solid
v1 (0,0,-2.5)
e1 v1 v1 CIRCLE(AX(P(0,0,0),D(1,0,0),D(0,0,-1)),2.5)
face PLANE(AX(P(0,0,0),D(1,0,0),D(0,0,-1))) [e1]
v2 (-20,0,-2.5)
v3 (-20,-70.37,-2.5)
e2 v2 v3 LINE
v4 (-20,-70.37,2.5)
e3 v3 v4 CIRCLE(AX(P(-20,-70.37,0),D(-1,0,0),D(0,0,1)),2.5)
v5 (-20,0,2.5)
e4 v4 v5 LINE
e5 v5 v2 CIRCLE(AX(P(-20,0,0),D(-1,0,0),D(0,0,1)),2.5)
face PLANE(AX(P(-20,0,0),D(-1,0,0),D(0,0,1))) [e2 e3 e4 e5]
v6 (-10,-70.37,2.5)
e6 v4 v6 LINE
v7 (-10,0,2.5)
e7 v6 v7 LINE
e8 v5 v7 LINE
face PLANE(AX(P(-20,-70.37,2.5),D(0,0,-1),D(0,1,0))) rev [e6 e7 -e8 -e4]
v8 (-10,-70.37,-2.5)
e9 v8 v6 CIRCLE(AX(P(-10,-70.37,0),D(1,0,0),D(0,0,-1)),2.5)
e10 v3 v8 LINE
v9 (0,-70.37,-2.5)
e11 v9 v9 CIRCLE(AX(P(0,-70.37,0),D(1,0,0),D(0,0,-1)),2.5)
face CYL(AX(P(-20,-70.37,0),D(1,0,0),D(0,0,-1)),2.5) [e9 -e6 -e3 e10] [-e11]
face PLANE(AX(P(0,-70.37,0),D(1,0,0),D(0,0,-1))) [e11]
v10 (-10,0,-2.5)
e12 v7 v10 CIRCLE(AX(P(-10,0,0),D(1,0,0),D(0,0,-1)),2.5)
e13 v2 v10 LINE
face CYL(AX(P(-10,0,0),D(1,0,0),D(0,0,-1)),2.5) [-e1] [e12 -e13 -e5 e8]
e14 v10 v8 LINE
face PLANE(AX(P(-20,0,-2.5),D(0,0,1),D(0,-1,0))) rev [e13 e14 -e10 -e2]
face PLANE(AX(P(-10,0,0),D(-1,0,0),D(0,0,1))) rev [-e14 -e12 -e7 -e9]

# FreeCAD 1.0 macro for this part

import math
import FreeCAD as App
import Part
import Sketcher

V = App.Vector
Q = App.Units.Quantity

doc = App.newDocument("Part")
body = doc.addObject("PartDesign::Body", "Body")

# Sketch on YZ plane
sketch1 = body.newObject("Sketcher::SketchObject", "Sketch")
sketch1.AttachmentSupport = (doc.getObject("YZ_Plane"), [""])
sketch1.MapMode = "FlatFace"
sketch1.addGeometry(Part.Circle(V(0, 0, 0), V(0, 0, 1), 2.5), False)
sketch1.addConstraint([
    Sketcher.Constraint("Coincident", 0, 3, -1, 1),
    Sketcher.Constraint("Diameter", 0, Q("5 mm")),
])
pad1 = body.newObject("PartDesign::Pad", "Pad")
pad1.Profile = sketch1
pad1.Length = 10
pad1.Reversed = True

# Sketch on YZ plane
sketch2 = body.newObject("Sketcher::SketchObject", "Sketch001")
sketch2.AttachmentSupport = (doc.getObject("YZ_Plane"), [""])
sketch2.MapMode = "FlatFace"
sketch2.AttachmentOffset = App.Placement(V(0, 0, -10), App.Rotation())
sketch2.addGeometry([
    Part.LineSegment(V(0, -2.5, 0), V(-70.37, -2.5, 0)),
    Part.ArcOfCircle(Part.Circle(V(-70.37, 0, 0), V(0, 0, 1), 2.5), math.radians(90), math.radians(270)),
    Part.LineSegment(V(-70.37, 2.5, 0), V(0, 2.5, 0)),
    Part.ArcOfCircle(Part.Circle(V(0, 0, 0), V(0, 0, 1), 2.5), math.radians(-90), math.radians(90)),
], False)
sketch2.addConstraint([
    Sketcher.Constraint("Tangent", 0, 2, 1, 2),
    Sketcher.Constraint("Tangent", 1, 1, 2, 1),
    Sketcher.Constraint("Tangent", 2, 2, 3, 2),
    Sketcher.Constraint("Tangent", 3, 1, 0, 1),
    Sketcher.Constraint("Horizontal", 0),
    Sketcher.Constraint("Horizontal", 2),
    Sketcher.Constraint("Coincident", 3, 3, -1, 1),
    Sketcher.Constraint("Radius", 1, Q("2.5 mm")),
    Sketcher.Constraint("DistanceX", 0, 2, 0, 1, Q("70.37 mm")),
])
pad2 = body.newObject("PartDesign::Pad", "Pad001")
pad2.Profile = sketch2
pad2.Length = 10
pad2.Reversed = True

# Sketch on YZ plane
sketch3 = body.newObject("Sketcher::SketchObject", "Sketch002")
sketch3.AttachmentSupport = (doc.getObject("YZ_Plane"), [""])
sketch3.MapMode = "FlatFace"
sketch3.AttachmentOffset = App.Placement(V(0, 0, -10), App.Rotation())
sketch3.addGeometry(Part.Circle(V(-70.37, 0, 0), V(0, 0, 1), 2.5), False)
sketch3.addConstraint([
    Sketcher.Constraint("PointOnObject", 0, 3, -1),
    Sketcher.Constraint("Diameter", 0, Q("5 mm")),
    Sketcher.Constraint("DistanceX", 0, 3, -1, 1, Q("70.37 mm")),
])
pad3 = body.newObject("PartDesign::Pad", "Pad002")
pad3.Profile = sketch3
pad3.Length = 10

doc.recompute()
